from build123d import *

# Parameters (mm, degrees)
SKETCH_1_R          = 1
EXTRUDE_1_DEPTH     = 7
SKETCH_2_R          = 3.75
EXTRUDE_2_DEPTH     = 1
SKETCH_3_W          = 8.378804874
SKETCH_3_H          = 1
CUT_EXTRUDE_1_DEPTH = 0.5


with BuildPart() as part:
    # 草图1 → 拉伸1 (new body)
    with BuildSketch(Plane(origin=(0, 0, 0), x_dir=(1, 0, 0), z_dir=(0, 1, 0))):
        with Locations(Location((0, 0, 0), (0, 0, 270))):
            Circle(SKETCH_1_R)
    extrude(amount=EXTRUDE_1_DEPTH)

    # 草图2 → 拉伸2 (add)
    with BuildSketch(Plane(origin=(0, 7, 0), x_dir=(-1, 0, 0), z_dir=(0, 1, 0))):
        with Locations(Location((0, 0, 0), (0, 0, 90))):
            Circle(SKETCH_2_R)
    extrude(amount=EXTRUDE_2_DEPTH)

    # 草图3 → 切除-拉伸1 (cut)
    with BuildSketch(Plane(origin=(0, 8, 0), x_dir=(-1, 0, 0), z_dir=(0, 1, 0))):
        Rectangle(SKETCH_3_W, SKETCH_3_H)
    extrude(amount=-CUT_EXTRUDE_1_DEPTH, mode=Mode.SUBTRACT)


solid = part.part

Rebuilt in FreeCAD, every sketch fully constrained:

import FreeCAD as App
import Part
import Sketcher

V = App.Vector
Q = App.Units.Quantity


def add_polygon(sketch, points):
    """Adds a closed chain of lines whose ends are joined by coincident constraints."""
    first, n = sketch.GeometryCount, len(points)
    for a, b in zip(points, points[1:] + points[:1]):
        sketch.addGeometry(Part.LineSegment(App.Vector(*a, 0), App.Vector(*b, 0)), False)
    for i in range(n):
        sketch.addConstraint(Sketcher.Constraint("Coincident", first + i, 2, first + (i + 1) % n, 1))

doc = App.newDocument("Part")
body = doc.addObject("PartDesign::Body", "Body")

sketch1 = body.newObject("Sketcher::SketchObject", "Sketch")
sketch1.AttachmentSupport = (doc.getObject("XZ_Plane"), [""])
sketch1.MapMode = "FlatFace"
sketch1.addGeometry(Part.Circle(V(0, 0, 0), V(0, 0, 1), 1), False)
sketch1.addConstraint([
    Sketcher.Constraint("Coincident", 0, 3, -1, 1),
    Sketcher.Constraint("Diameter", 0, Q("2 mm")),
])
pad1 = body.newObject("PartDesign::Pad", "Pad")
pad1.Profile = sketch1
pad1.Length = 7
pad1.Reversed = True

sketch2 = body.newObject("Sketcher::SketchObject", "Sketch001")
sketch2.AttachmentSupport = (doc.getObject("XZ_Plane"), [""])
sketch2.MapMode = "FlatFace"
sketch2.AttachmentOffset = App.Placement(V(0, 0, -7), App.Rotation())
sketch2.addGeometry(Part.Circle(V(0, 0, 0), V(0, 0, 1), 3.8), False)
sketch2.addConstraint([
    Sketcher.Constraint("Coincident", 0, 3, -1, 1),
    Sketcher.Constraint("Diameter", 0, Q("7.5 mm")),
])
pad2 = body.newObject("PartDesign::Pad", "Pad001")
pad2.Profile = sketch2
pad2.Length = 1
pad2.Reversed = True

sketch3 = body.newObject("Sketcher::SketchObject", "Sketch002")
sketch3.AttachmentSupport = (doc.getObject("XZ_Plane"), [""])
sketch3.MapMode = "FlatFace"
sketch3.AttachmentOffset = App.Placement(V(0, 0, -8), App.Rotation())
add_polygon(sketch3, [(4.2, 0.5), (4.2, -0.5), (-4.2, -0.5), (-4.2, 0.5)])
sketch3.addConstraint([
    Sketcher.Constraint("Vertical", 0),
    Sketcher.Constraint("Horizontal", 1),
    Sketcher.Constraint("Vertical", 2),
    Sketcher.Constraint("Horizontal", 3),
    Sketcher.Constraint("Symmetric", 0, 2, 2, 2, -1, 1),
    Sketcher.Constraint("DistanceY", 0, 2, 0, 1, Q("1 mm")),
    Sketcher.Constraint("DistanceX", 1, 2, 1, 1, Q("8.378805 mm")),
])
pocket1 = body.newObject("PartDesign::Pocket", "Pocket")
pocket1.Profile = sketch3
pocket1.Length = 0.5
pocket1.Reversed = True

doc.recompute()
